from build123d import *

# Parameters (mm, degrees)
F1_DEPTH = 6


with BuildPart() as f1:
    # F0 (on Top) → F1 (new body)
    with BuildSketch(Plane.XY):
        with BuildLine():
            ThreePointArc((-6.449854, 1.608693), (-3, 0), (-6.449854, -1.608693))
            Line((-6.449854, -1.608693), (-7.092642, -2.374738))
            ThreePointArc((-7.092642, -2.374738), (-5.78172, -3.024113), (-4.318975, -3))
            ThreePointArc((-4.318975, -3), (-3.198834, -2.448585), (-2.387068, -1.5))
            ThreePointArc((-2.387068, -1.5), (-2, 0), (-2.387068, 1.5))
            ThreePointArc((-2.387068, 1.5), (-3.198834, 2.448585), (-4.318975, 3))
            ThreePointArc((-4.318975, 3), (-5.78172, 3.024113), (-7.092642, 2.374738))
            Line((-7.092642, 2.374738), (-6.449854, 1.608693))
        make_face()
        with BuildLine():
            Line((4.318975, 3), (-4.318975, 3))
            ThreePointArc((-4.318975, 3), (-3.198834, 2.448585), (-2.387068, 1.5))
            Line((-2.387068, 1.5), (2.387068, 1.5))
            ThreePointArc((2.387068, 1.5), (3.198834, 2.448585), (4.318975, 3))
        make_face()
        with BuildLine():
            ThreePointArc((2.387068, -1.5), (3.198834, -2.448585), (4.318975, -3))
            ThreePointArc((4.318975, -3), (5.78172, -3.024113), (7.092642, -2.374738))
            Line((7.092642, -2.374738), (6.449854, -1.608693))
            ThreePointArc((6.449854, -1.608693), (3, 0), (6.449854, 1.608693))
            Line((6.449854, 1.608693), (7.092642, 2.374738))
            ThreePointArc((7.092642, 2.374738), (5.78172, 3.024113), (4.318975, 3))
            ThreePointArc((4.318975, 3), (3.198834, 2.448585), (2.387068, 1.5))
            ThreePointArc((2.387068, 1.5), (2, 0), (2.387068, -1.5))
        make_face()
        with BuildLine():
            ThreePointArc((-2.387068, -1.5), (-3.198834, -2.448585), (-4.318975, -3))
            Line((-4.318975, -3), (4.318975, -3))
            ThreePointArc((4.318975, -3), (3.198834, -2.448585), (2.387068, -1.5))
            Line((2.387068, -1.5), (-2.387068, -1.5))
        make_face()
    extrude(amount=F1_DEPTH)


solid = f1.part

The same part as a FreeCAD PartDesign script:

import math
import FreeCAD as App
import Part
import Sketcher
Q = App.Units.Quantity

doc = App.newDocument("Part")
body = doc.addObject("PartDesign::Body", "Body")

# Sketch on XY plane
sketch1 = body.newObject("Sketcher::SketchObject", "Sketch")
sketch1.AttachmentSupport = (doc.getObject("XY_Plane"), [""])
sketch1.MapMode = "FlatFace"
sketch1.addGeometry([
    Part.ArcOfCircle(Part.Circle(App.Vector(-5.1, 0, 0), App.Vector(0, 0, 1), 2.1), math.radians(-130), math.radians(130)),  # 0
    Part.LineSegment(App.Vector(-6.4, -1.6, 0), App.Vector(-7.1, -2.4, 0)),  # 1
    Part.ArcOfCircle(Part.Circle(App.Vector(-5.1, 0, 0), App.Vector(0, 0, 1), 3.1), math.radians(-130), math.radians(-75)),  # 2
    Part.LineSegment(App.Vector(-4.3, -3, 0), App.Vector(4.3, -3, 0)),  # 3
    Part.ArcOfCircle(Part.Circle(App.Vector(5.1, 0, 0), App.Vector(0, 0, 1), 3.1), math.radians(-105), math.radians(-50)),  # 4
    Part.LineSegment(App.Vector(7.1, -2.4, 0), App.Vector(6.4, -1.6, 0)),  # 5
    Part.ArcOfCircle(Part.Circle(App.Vector(5.1, 0, 0), App.Vector(0, 0, 1), 2.1), math.radians(50), math.radians(310)),  # 6
    Part.LineSegment(App.Vector(6.4, 1.6, 0), App.Vector(7.1, 2.4, 0)),  # 7
    Part.ArcOfCircle(Part.Circle(App.Vector(5.1, 0, 0), App.Vector(0, 0, 1), 3.1), math.radians(50), math.radians(105)),  # 8
    Part.LineSegment(App.Vector(4.3, 3, 0), App.Vector(-4.3, 3, 0)),  # 9
    Part.ArcOfCircle(Part.Circle(App.Vector(-5.1, 0, 0), App.Vector(0, 0, 1), 3.1), math.radians(75), math.radians(130)),  # 10
    Part.LineSegment(App.Vector(-7.1, 2.4, 0), App.Vector(-6.4, 1.6, 0)),  # 11
    Part.ArcOfCircle(Part.Circle(App.Vector(-5.1, 0, 0), App.Vector(0, 0, 1), 3.1), math.radians(-29), math.radians(29)),  # 12
    Part.LineSegment(App.Vector(-2.4, 1.5, 0), App.Vector(2.4, 1.5, 0)),  # 13
    Part.ArcOfCircle(Part.Circle(App.Vector(5.1, 0, 0), App.Vector(0, 0, 1), 3.1), math.radians(151), math.radians(209)),  # 14
    Part.LineSegment(App.Vector(2.4, -1.5, 0), App.Vector(-2.4, -1.5, 0)),  # 15
], False)
sketch1.addConstraint([
    Sketcher.Constraint("Coincident", 0, 1, 1, 1),
    Sketcher.Constraint("Coincident", 1, 2, 2, 1),
    Sketcher.Constraint("Coincident", 2, 2, 3, 1),
    Sketcher.Constraint("Coincident", 3, 2, 4, 1),
    Sketcher.Constraint("Coincident", 4, 2, 5, 1),
    Sketcher.Constraint("Coincident", 5, 2, 6, 2),
    Sketcher.Constraint("Coincident", 6, 1, 7, 1),
    Sketcher.Constraint("Coincident", 7, 2, 8, 1),
    Sketcher.Constraint("Coincident", 8, 2, 9, 1),
    Sketcher.Constraint("Coincident", 9, 2, 10, 1),
    Sketcher.Constraint("Coincident", 10, 2, 11, 1),
    Sketcher.Constraint("Coincident", 11, 2, 0, 2),
    Sketcher.Constraint("Coincident", 12, 2, 13, 1),
    Sketcher.Constraint("Coincident", 13, 2, 14, 1),
    Sketcher.Constraint("Coincident", 14, 2, 15, 1),
    Sketcher.Constraint("Coincident", 15, 2, 12, 1),
    Sketcher.Constraint("Horizontal", 3),
    Sketcher.Constraint("Horizontal", 9),
    Sketcher.Constraint("Horizontal", 13),
    Sketcher.Constraint("Horizontal", 15),
    Sketcher.Constraint("Coincident", 2, 3, 0, 3),
    Sketcher.Constraint("Coincident", 6, 3, 4, 3),
    Sketcher.Constraint("Coincident", 8, 3, 4, 3),
    Sketcher.Constraint("Coincident", 10, 3, 0, 3),
    Sketcher.Constraint("Coincident", 12, 3, 0, 3),
    Sketcher.Constraint("Coincident", 14, 3, 4, 3),
    Sketcher.Constraint("Equal", 2, 4),
    Sketcher.Constraint("Equal", 0, 6),
    Sketcher.Constraint("Equal", 4, 8),
    Sketcher.Constraint("Equal", 8, 10),
    Sketcher.Constraint("Equal", 10, 12),
    Sketcher.Constraint("Equal", 12, 14),
    Sketcher.Constraint("Symmetric", 0, 3, 4, 3, -1, 1),
    Sketcher.Constraint("Symmetric", 1, 2, 4, 2, -2),
    Sketcher.Constraint("Parallel", 1, 7),
    Sketcher.Constraint("Parallel", 5, 11),
    Sketcher.Constraint("Horizontal", 0, 1, 5, 2),
    Sketcher.Constraint("Horizontal", 7, 2, 10, 2),
    Sketcher.Constraint("Vertical", 5, 2, 6, 1),
    Sketcher.Constraint("Vertical", 3, 2, 8, 2),
    Sketcher.Constraint("Vertical", 13, 2, 14, 2),
    Sketcher.Constraint("Radius", 0, 2.1),
    Sketcher.Constraint("Radius", 2, 3.1),
    Sketcher.Constraint("Angle", 1, Q("-129.999997 deg")),
    Sketcher.Constraint("DistanceY", 2, 2, -1, 1, 3.0),
    Sketcher.Constraint("DistanceY", 14, 2, 13, 2, 3.0),
    Sketcher.Constraint("DistanceX", 0, 3, -1, 1, 5.1),
    Sketcher.Constraint("DistanceX", 1, 2, -1, 1, 7.092642),
])
pad1 = body.newObject("PartDesign::Pad", "Pad")
pad1.Profile = sketch1
pad1.Length = 6

doc.recompute()
